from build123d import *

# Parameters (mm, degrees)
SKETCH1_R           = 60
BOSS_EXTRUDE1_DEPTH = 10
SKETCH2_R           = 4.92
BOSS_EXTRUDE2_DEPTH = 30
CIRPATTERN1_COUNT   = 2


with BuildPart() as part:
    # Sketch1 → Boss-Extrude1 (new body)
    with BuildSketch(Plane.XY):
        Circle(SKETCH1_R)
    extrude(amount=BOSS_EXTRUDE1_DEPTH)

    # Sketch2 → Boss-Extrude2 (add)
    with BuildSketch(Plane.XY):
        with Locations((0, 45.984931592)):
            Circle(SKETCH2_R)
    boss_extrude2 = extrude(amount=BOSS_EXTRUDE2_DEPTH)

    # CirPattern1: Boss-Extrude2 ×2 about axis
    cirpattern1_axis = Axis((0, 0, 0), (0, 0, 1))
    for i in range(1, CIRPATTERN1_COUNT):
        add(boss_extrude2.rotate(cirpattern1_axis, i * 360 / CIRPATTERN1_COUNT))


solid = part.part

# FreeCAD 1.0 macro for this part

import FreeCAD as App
import Part
import Sketcher

doc = App.newDocument("Part")
body = doc.addObject("PartDesign::Body", "Body")

# Sketch on XY plane
sketch1 = body.newObject("Sketcher::SketchObject", "Sketch")
sketch1.AttachmentSupport = (doc.getObject("XY_Plane"), [""])
sketch1.MapMode = "FlatFace"
sketch1.addGeometry(Part.Circle(App.Vector(0, 0, 0), App.Vector(0, 0, 1), 60), False)
sketch1.addConstraint(Sketcher.Constraint("Coincident", 0, 3, -1, 1))
sketch1.addConstraint(Sketcher.Constraint("Diameter", 0, 120.0))
pad1 = body.newObject("PartDesign::Pad", "Pad")
pad1.Profile = sketch1
pad1.Length = 10

# Sketch on XY plane
sketch2 = body.newObject("Sketcher::SketchObject", "Sketch001")
sketch2.AttachmentSupport = (doc.getObject("XY_Plane"), [""])
sketch2.MapMode = "FlatFace"
sketch2.addGeometry(Part.Circle(App.Vector(0, 46, 0), App.Vector(0, 0, 1), 4.9), False)
sketch2.addConstraint(Sketcher.Constraint("PointOnObject", 0, 3, -2))
sketch2.addConstraint(Sketcher.Constraint("Diameter", 0, 9.84))
sketch2.addConstraint(Sketcher.Constraint("DistanceY", -1, 1, 0, 3, 45.984932))
pad2 = body.newObject("PartDesign::Pad", "Pad001")
pad2.Profile = sketch2
pad2.Length = 30
doc.recompute()

polarpattern = body.newObject("PartDesign::PolarPattern", "PolarPattern")
polarpattern.Originals = [pad2]
polarpattern.Axis = (doc.getObject("Z_Axis"), [""])
polarpattern.Angle = 360
polarpattern.Occurrences = 2
body.Tip = polarpattern

doc.recompute()
